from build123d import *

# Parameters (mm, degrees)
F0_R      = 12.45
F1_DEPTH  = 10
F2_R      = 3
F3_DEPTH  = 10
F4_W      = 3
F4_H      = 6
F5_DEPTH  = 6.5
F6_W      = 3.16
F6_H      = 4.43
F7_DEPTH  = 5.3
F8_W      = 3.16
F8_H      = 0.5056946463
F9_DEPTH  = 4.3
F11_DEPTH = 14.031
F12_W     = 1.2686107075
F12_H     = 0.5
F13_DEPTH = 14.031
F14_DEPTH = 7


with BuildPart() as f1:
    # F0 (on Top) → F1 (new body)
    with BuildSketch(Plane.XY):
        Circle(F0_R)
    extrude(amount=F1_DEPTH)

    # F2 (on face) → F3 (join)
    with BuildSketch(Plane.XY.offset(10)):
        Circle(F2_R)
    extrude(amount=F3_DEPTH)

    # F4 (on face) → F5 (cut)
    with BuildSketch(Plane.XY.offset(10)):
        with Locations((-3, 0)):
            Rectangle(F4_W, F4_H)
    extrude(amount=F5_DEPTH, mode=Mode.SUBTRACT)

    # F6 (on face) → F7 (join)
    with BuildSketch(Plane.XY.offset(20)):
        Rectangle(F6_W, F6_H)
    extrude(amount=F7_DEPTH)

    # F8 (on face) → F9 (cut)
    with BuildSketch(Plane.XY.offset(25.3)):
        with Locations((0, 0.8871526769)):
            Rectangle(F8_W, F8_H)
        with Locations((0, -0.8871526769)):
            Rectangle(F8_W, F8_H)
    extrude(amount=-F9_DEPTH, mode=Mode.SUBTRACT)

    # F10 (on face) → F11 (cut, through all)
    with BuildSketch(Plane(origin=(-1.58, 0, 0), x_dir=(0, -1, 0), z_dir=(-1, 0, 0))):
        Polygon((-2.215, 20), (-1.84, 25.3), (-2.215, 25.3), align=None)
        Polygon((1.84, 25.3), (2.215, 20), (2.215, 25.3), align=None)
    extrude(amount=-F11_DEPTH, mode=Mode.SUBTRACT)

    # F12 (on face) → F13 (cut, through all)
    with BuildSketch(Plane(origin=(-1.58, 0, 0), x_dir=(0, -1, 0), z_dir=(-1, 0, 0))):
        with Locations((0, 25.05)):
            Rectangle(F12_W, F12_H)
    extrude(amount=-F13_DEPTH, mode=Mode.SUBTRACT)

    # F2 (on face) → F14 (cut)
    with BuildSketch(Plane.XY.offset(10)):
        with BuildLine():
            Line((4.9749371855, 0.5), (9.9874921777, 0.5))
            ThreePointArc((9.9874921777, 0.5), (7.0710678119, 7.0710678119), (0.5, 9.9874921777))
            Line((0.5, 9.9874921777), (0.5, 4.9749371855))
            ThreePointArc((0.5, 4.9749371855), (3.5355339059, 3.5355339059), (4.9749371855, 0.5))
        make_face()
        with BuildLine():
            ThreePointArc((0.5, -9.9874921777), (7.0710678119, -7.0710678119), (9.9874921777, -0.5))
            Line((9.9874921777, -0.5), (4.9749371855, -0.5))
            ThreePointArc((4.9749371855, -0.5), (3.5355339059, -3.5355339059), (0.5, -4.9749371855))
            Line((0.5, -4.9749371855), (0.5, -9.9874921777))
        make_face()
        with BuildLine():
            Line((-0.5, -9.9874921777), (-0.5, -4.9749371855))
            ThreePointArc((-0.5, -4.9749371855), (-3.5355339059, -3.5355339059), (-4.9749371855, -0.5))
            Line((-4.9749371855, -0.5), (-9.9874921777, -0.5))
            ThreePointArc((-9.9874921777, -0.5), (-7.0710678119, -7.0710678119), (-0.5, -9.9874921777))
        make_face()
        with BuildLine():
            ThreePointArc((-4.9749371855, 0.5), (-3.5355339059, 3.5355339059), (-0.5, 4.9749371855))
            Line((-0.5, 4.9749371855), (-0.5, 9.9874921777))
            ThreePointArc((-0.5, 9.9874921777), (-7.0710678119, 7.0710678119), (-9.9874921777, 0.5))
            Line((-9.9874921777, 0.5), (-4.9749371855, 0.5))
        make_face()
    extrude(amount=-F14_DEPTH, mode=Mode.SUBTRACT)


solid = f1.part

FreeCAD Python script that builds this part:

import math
import FreeCAD as App
import Part
import Sketcher
from FreeCAD import Vector
Q = App.Units.Quantity

doc = App.newDocument("Part")
body = doc.addObject("PartDesign::Body", "Body")

sketch1 = body.newObject("Sketcher::SketchObject", "Sketch")
sketch1.AttachmentSupport = (doc.getObject("XY_Plane"), [""])
sketch1.MapMode = "FlatFace"
sketch1.addGeometry(Part.Circle(Vector(0, 0, 0), Vector(0, 0, 1), 12), False)
sketch1.addConstraint(Sketcher.Constraint("Coincident", 0, 3, -1, 1))
sketch1.addConstraint(Sketcher.Constraint("Diameter", 0, Q("24.9 mm")))
pad1 = body.newObject("PartDesign::Pad", "Pad")
pad1.Profile = sketch1
pad1.Length = 10

sketch2 = body.newObject("Sketcher::SketchObject", "Sketch001")
sketch2.AttachmentSupport = (doc.getObject("XY_Plane"), [""])
sketch2.MapMode = "FlatFace"
sketch2.AttachmentOffset = App.Placement(Vector(0, 0, 10), App.Rotation())
sketch2.addGeometry(Part.Circle(Vector(0, 0, 0), Vector(0, 0, 1), 3), False)
sketch2.addConstraint(Sketcher.Constraint("Coincident", 0, 3, -1, 1))
sketch2.addConstraint(Sketcher.Constraint("Diameter", 0, Q("6 mm")))
pad2 = body.newObject("PartDesign::Pad", "Pad001")
pad2.Profile = sketch2
pad2.Length = 10

sketch3 = body.newObject("Sketcher::SketchObject", "Sketch002")
sketch3.AttachmentSupport = (doc.getObject("XY_Plane"), [""])
sketch3.MapMode = "FlatFace"
sketch3.AttachmentOffset = App.Placement(Vector(0, 0, 10), App.Rotation())
sketch3.addGeometry(Part.LineSegment(Vector(-4.5, 3, 0), Vector(-4.5, -3, 0)), False)
sketch3.addGeometry(Part.LineSegment(Vector(-4.5, -3, 0), Vector(-1.5, -3, 0)), False)
sketch3.addGeometry(Part.LineSegment(Vector(-1.5, -3, 0), Vector(-1.5, 3, 0)), False)
sketch3.addGeometry(Part.LineSegment(Vector(-1.5, 3, 0), Vector(-4.5, 3, 0)), False)
sketch3.addConstraint(Sketcher.Constraint("Coincident", 0, 2, 1, 1))
sketch3.addConstraint(Sketcher.Constraint("Coincident", 1, 2, 2, 1))
sketch3.addConstraint(Sketcher.Constraint("Coincident", 2, 2, 3, 1))
sketch3.addConstraint(Sketcher.Constraint("Coincident", 3, 2, 0, 1))
sketch3.addConstraint(Sketcher.Constraint("Vertical", 0))
sketch3.addConstraint(Sketcher.Constraint("Horizontal", 1))
sketch3.addConstraint(Sketcher.Constraint("Vertical", 2))
sketch3.addConstraint(Sketcher.Constraint("Horizontal", 3))
sketch3.addConstraint(Sketcher.Constraint("DistanceX", 1, 1, 1, 2, Q("3 mm")))
sketch3.addConstraint(Sketcher.Constraint("DistanceY", 0, 2, 0, 1, Q("6 mm")))
sketch3.addConstraint(Sketcher.Constraint("DistanceY", 0, 2, -1, 1, Q("3 mm")))
sketch3.addConstraint(Sketcher.Constraint("DistanceX", 0, 2, -1, 1, Q("4.5 mm")))
pocket1 = body.newObject("PartDesign::Pocket", "Pocket")
pocket1.Profile = sketch3
pocket1.Length = 6.5
pocket1.Reversed = True

sketch4 = body.newObject("Sketcher::SketchObject", "Sketch003")
sketch4.AttachmentSupport = (doc.getObject("XY_Plane"), [""])
sketch4.MapMode = "FlatFace"
sketch4.AttachmentOffset = App.Placement(Vector(0, 0, 20), App.Rotation())
sketch4.addGeometry(Part.LineSegment(Vector(-1.6, 2.2, 0), Vector(-1.6, -2.2, 0)), False)
sketch4.addGeometry(Part.LineSegment(Vector(-1.6, -2.2, 0), Vector(1.6, -2.2, 0)), False)
sketch4.addGeometry(Part.LineSegment(Vector(1.6, -2.2, 0), Vector(1.6, 2.2, 0)), False)
sketch4.addGeometry(Part.LineSegment(Vector(1.6, 2.2, 0), Vector(-1.6, 2.2, 0)), False)
sketch4.addConstraint(Sketcher.Constraint("Coincident", 0, 2, 1, 1))
sketch4.addConstraint(Sketcher.Constraint("Coincident", 1, 2, 2, 1))
sketch4.addConstraint(Sketcher.Constraint("Coincident", 2, 2, 3, 1))
sketch4.addConstraint(Sketcher.Constraint("Coincident", 3, 2, 0, 1))
sketch4.addConstraint(Sketcher.Constraint("Vertical", 0))
sketch4.addConstraint(Sketcher.Constraint("Horizontal", 1))
sketch4.addConstraint(Sketcher.Constraint("Vertical", 2))
sketch4.addConstraint(Sketcher.Constraint("Horizontal", 3))
sketch4.addConstraint(Sketcher.Constraint("Symmetric", 0, 2, 2, 2, -1, 1))
sketch4.addConstraint(Sketcher.Constraint("DistanceX", 1, 1, 1, 2, Q("3.16 mm")))
sketch4.addConstraint(Sketcher.Constraint("DistanceY", 0, 2, 0, 1, Q("4.43 mm")))
pad3 = body.newObject("PartDesign::Pad", "Pad002")
pad3.Profile = sketch4
pad3.Length = 5.3

sketch5 = body.newObject("Sketcher::SketchObject", "Sketch004")
sketch5.AttachmentSupport = (doc.getObject("XY_Plane"), [""])
sketch5.MapMode = "FlatFace"
sketch5.AttachmentOffset = App.Placement(Vector(0, 0, 25.3), App.Rotation())
sketch5.addGeometry(Part.LineSegment(Vector(-1.6, 1.1, 0), Vector(-1.6, 0.6, 0)), False)
sketch5.addGeometry(Part.LineSegment(Vector(-1.6, 0.6, 0), Vector(1.6, 0.6, 0)), False)
sketch5.addGeometry(Part.LineSegment(Vector(1.6, 0.6, 0), Vector(1.6, 1.1, 0)), False)
sketch5.addGeometry(Part.LineSegment(Vector(1.6, 1.1, 0), Vector(-1.6, 1.1, 0)), False)
sketch5.addGeometry(Part.LineSegment(Vector(-1.6, -0.6, 0), Vector(-1.6, -1.1, 0)), False)
sketch5.addGeometry(Part.LineSegment(Vector(-1.6, -1.1, 0), Vector(1.6, -1.1, 0)), False)
sketch5.addGeometry(Part.LineSegment(Vector(1.6, -1.1, 0), Vector(1.6, -0.6, 0)), False)
sketch5.addGeometry(Part.LineSegment(Vector(1.6, -0.6, 0), Vector(-1.6, -0.6, 0)), False)
sketch5.addConstraint(Sketcher.Constraint("Coincident", 0, 2, 1, 1))
sketch5.addConstraint(Sketcher.Constraint("Coincident", 1, 2, 2, 1))
sketch5.addConstraint(Sketcher.Constraint("Coincident", 2, 2, 3, 1))
sketch5.addConstraint(Sketcher.Constraint("Coincident", 3, 2, 0, 1))
sketch5.addConstraint(Sketcher.Constraint("Coincident", 4, 2, 5, 1))
sketch5.addConstraint(Sketcher.Constraint("Coincident", 5, 2, 6, 1))
sketch5.addConstraint(Sketcher.Constraint("Coincident", 6, 2, 7, 1))
sketch5.addConstraint(Sketcher.Constraint("Coincident", 7, 2, 4, 1))
sketch5.addConstraint(Sketcher.Constraint("Vertical", 0))
sketch5.addConstraint(Sketcher.Constraint("Horizontal", 1))
sketch5.addConstraint(Sketcher.Constraint("Vertical", 2))
sketch5.addConstraint(Sketcher.Constraint("Horizontal", 3))
sketch5.addConstraint(Sketcher.Constraint("Vertical", 4))
sketch5.addConstraint(Sketcher.Constraint("Horizontal", 5))
sketch5.addConstraint(Sketcher.Constraint("Vertical", 6))
sketch5.addConstraint(Sketcher.Constraint("Horizontal", 7))
sketch5.addConstraint(Sketcher.Constraint("Symmetric", 2, 2, 4, 2, -1, 1))
sketch5.addConstraint(Sketcher.Constraint("Symmetric", 0, 2, 6, 2, -1, 1))
sketch5.addConstraint(Sketcher.Constraint("Vertical", 3, 2, 4, 2))
sketch5.addConstraint(Sketcher.Constraint("DistanceX", 1, 1, 1, 2, Q("3.16 mm")))
sketch5.addConstraint(Sketcher.Constraint("DistanceY", -1, 1, 2, 2, Q("1.14 mm")))
sketch5.addConstraint(Sketcher.Constraint("DistanceY", 0, 2, 0, 1, Q("0.505695 mm")))
pocket2 = body.newObject("PartDesign::Pocket", "Pocket001")
pocket2.Profile = sketch5
pocket2.Length = 4.3

sketch6 = body.newObject("Sketcher::SketchObject", "Sketch005")
sketch6.AttachmentSupport = (doc.getObject("YZ_Plane"), [""])
sketch6.MapMode = "FlatFace"
sketch6.AttachmentOffset = App.Placement(Vector(0, 0, -1.58), App.Rotation())
sketch6.addGeometry(Part.LineSegment(Vector(2.21, 20, 0), Vector(1.84, 25.3, 0)), False)
sketch6.addGeometry(Part.LineSegment(Vector(1.84, 25.3, 0), Vector(2.21, 25.3, 0)), False)
sketch6.addGeometry(Part.LineSegment(Vector(2.21, 25.3, 0), Vector(2.21, 20, 0)), False)
sketch6.addGeometry(Part.LineSegment(Vector(-1.84, 25.3, 0), Vector(-2.21, 20, 0)), False)
sketch6.addGeometry(Part.LineSegment(Vector(-2.21, 20, 0), Vector(-2.21, 25.3, 0)), False)
sketch6.addGeometry(Part.LineSegment(Vector(-2.21, 25.3, 0), Vector(-1.84, 25.3, 0)), False)
sketch6.addConstraint(Sketcher.Constraint("Coincident", 0, 2, 1, 1))
sketch6.addConstraint(Sketcher.Constraint("Coincident", 1, 2, 2, 1))
sketch6.addConstraint(Sketcher.Constraint("Coincident", 2, 2, 0, 1))
sketch6.addConstraint(Sketcher.Constraint("Coincident", 3, 2, 4, 1))
sketch6.addConstraint(Sketcher.Constraint("Coincident", 4, 2, 5, 1))
sketch6.addConstraint(Sketcher.Constraint("Coincident", 5, 2, 3, 1))
sketch6.addConstraint(Sketcher.Constraint("Horizontal", 1))
sketch6.addConstraint(Sketcher.Constraint("Vertical", 2))
sketch6.addConstraint(Sketcher.Constraint("Vertical", 4))
sketch6.addConstraint(Sketcher.Constraint("Horizontal", 5))
sketch6.addConstraint(Sketcher.Constraint("Symmetric", 2, 2, 3, 2, -2))
sketch6.addConstraint(Sketcher.Constraint("Symmetric", 0, 2, 5, 2, -2))
sketch6.addConstraint(Sketcher.Constraint("DistanceY", 2, 2, 2, 1, Q("5.3 mm")))
sketch6.addConstraint(Sketcher.Constraint("DistanceY", -1, 1, 2, 2, Q("20 mm")))
sketch6.addConstraint(Sketcher.Constraint("DistanceX", 1, 1, 1, 2, Q("0.375 mm")))
sketch6.addConstraint(Sketcher.Constraint("DistanceX", -1, 1, 0, 2, Q("1.84 mm")))
pocket3 = body.newObject("PartDesign::Pocket", "Pocket002")
pocket3.Profile = sketch6
pocket3.Type = "ThroughAll"
pocket3.Reversed = True

sketch7 = body.newObject("Sketcher::SketchObject", "Sketch006")
sketch7.AttachmentSupport = (doc.getObject("YZ_Plane"), [""])
sketch7.MapMode = "FlatFace"
sketch7.AttachmentOffset = App.Placement(Vector(0, 0, -1.58), App.Rotation())
sketch7.addGeometry(Part.LineSegment(Vector(0.6, 25.3, 0), Vector(0.6, 24.8, 0)), False)
sketch7.addGeometry(Part.LineSegment(Vector(0.6, 24.8, 0), Vector(-0.6, 24.8, 0)), False)
sketch7.addGeometry(Part.LineSegment(Vector(-0.6, 24.8, 0), Vector(-0.6, 25.3, 0)), False)
sketch7.addGeometry(Part.LineSegment(Vector(-0.6, 25.3, 0), Vector(0.6, 25.3, 0)), False)
sketch7.addConstraint(Sketcher.Constraint("Coincident", 0, 2, 1, 1))
sketch7.addConstraint(Sketcher.Constraint("Coincident", 1, 2, 2, 1))
sketch7.addConstraint(Sketcher.Constraint("Coincident", 2, 2, 3, 1))
sketch7.addConstraint(Sketcher.Constraint("Coincident", 3, 2, 0, 1))
sketch7.addConstraint(Sketcher.Constraint("Vertical", 0))
sketch7.addConstraint(Sketcher.Constraint("Horizontal", 1))
sketch7.addConstraint(Sketcher.Constraint("Vertical", 2))
sketch7.addConstraint(Sketcher.Constraint("Horizontal", 3))
sketch7.addConstraint(Sketcher.Constraint("DistanceY", 0, 2, 0, 1, Q("0.5 mm")))
sketch7.addConstraint(Sketcher.Constraint("DistanceY", -1, 1, 0, 2, Q("24.8 mm")))
sketch7.addConstraint(Sketcher.Constraint("DistanceX", 1, 2, 1, 1, Q("1.268611 mm")))
sketch7.addConstraint(Sketcher.Constraint("DistanceX", -1, 1, 0, 2, Q("0.634305 mm")))
pocket4 = body.newObject("PartDesign::Pocket", "Pocket003")
pocket4.Profile = sketch7
pocket4.Type = "ThroughAll"
pocket4.Reversed = True

sketch8 = body.newObject("Sketcher::SketchObject", "Sketch007")
sketch8.AttachmentSupport = (doc.getObject("XY_Plane"), [""])
sketch8.MapMode = "FlatFace"
sketch8.AttachmentOffset = App.Placement(Vector(0, 0, 10), App.Rotation())
sketch8.addGeometry(Part.LineSegment(Vector(5, 0, 0), Vector(10, 0, 0)), False)
sketch8.addGeometry(Part.ArcOfCircle(Part.Circle(Vector(0, 0, 0), Vector(0, 0, 1), 10), math.radians(3), math.radians(87)), False)
sketch8.addGeometry(Part.LineSegment(Vector(0, 10, 0), Vector(0, 5, 0)), False)
sketch8.addGeometry(Part.ArcOfCircle(Part.Circle(Vector(0, 0, 0), Vector(0, 0, 1), 5), math.radians(6), math.radians(84)), False)
sketch8.addGeometry(Part.ArcOfCircle(Part.Circle(Vector(0, 0, 0), Vector(0, 0, 1), 10), math.radians(-87), math.radians(-3)), False)
sketch8.addGeometry(Part.LineSegment(Vector(10, 0, 0), Vector(5, 0, 0)), False)
sketch8.addGeometry(Part.ArcOfCircle(Part.Circle(Vector(0, 0, 0), Vector(0, 0, 1), 5), math.radians(-84), math.radians(-6)), False)
sketch8.addGeometry(Part.LineSegment(Vector(0, -5, 0), Vector(0, -10, 0)), False)
sketch8.addGeometry(Part.LineSegment(Vector(0, -10, 0), Vector(0, -5, 0)), False)
sketch8.addGeometry(Part.ArcOfCircle(Part.Circle(Vector(0, 0, 0), Vector(0, 0, 1), 5), math.radians(-174), math.radians(-96)), False)
sketch8.addGeometry(Part.LineSegment(Vector(-5, 0, 0), Vector(-10, 0, 0)), False)
sketch8.addGeometry(Part.ArcOfCircle(Part.Circle(Vector(0, 0, 0), Vector(0, 0, 1), 10), math.radians(-177), math.radians(-93)), False)
sketch8.addGeometry(Part.ArcOfCircle(Part.Circle(Vector(0, 0, 0), Vector(0, 0, 1), 5), math.radians(96), math.radians(174)), False)
sketch8.addGeometry(Part.LineSegment(Vector(0, 5, 0), Vector(0, 10, 0)), False)
sketch8.addGeometry(Part.ArcOfCircle(Part.Circle(Vector(0, 0, 0), Vector(0, 0, 1), 10), math.radians(93), math.radians(177)), False)
sketch8.addGeometry(Part.LineSegment(Vector(-10, 0, 0), Vector(-5, 0, 0)), False)
sketch8.addConstraint(Sketcher.Constraint("Coincident", 0, 2, 1, 1))
sketch8.addConstraint(Sketcher.Constraint("Coincident", 1, 2, 2, 1))
sketch8.addConstraint(Sketcher.Constraint("Coincident", 2, 2, 3, 2))
sketch8.addConstraint(Sketcher.Constraint("Coincident", 3, 1, 0, 1))
sketch8.addConstraint(Sketcher.Constraint("Coincident", 4, 2, 5, 1))
sketch8.addConstraint(Sketcher.Constraint("Coincident", 5, 2, 6, 2))
sketch8.addConstraint(Sketcher.Constraint("Coincident", 6, 1, 7, 1))
sketch8.addConstraint(Sketcher.Constraint("Coincident", 7, 2, 4, 1))
sketch8.addConstraint(Sketcher.Constraint("Coincident", 8, 2, 9, 2))
sketch8.addConstraint(Sketcher.Constraint("Coincident", 9, 1, 10, 1))
sketch8.addConstraint(Sketcher.Constraint("Coincident", 10, 2, 11, 1))
sketch8.addConstraint(Sketcher.Constraint("Coincident", 11, 2, 8, 1))
sketch8.addConstraint(Sketcher.Constraint("Coincident", 12, 1, 13, 1))
sketch8.addConstraint(Sketcher.Constraint("Coincident", 13, 2, 14, 1))
sketch8.addConstraint(Sketcher.Constraint("Coincident", 14, 2, 15, 1))
sketch8.addConstraint(Sketcher.Constraint("Coincident", 15, 2, 12, 2))
sketch8.addConstraint(Sketcher.Constraint("Horizontal", 0))
sketch8.addConstraint(Sketcher.Constraint("Vertical", 2))
sketch8.addConstraint(Sketcher.Constraint("Horizontal", 5))
sketch8.addConstraint(Sketcher.Constraint("Vertical", 7))
sketch8.addConstraint(Sketcher.Constraint("Vertical", 8))
sketch8.addConstraint(Sketcher.Constraint("Horizontal", 10))
sketch8.addConstraint(Sketcher.Constraint("Vertical", 13))
sketch8.addConstraint(Sketcher.Constraint("Horizontal", 15))
sketch8.addConstraint(Sketcher.Constraint("Coincident", 1, 3, -1, 1))
sketch8.addConstraint(Sketcher.Constraint("Coincident", 3, 3, -1, 1))
sketch8.addConstraint(Sketcher.Constraint("Coincident", 4, 3, -1, 1))
sketch8.addConstraint(Sketcher.Constraint("Coincident", 6, 3, -1, 1))
sketch8.addConstraint(Sketcher.Constraint("Coincident", 9, 3, -1, 1))
sketch8.addConstraint(Sketcher.Constraint("Coincident", 11, 3, -1, 1))
sketch8.addConstraint(Sketcher.Constraint("Coincident", 12, 3, -1, 1))
sketch8.addConstraint(Sketcher.Constraint("Coincident", 14, 3, -1, 1))
sketch8.addConstraint(Sketcher.Constraint("Equal", 1, 4))
sketch8.addConstraint(Sketcher.Constraint("Equal", 3, 6))
sketch8.addConstraint(Sketcher.Constraint("Equal", 6, 9))
sketch8.addConstraint(Sketcher.Constraint("Equal", 4, 11))
sketch8.addConstraint(Sketcher.Constraint("Equal", 9, 12))
sketch8.addConstraint(Sketcher.Constraint("Equal", 11, 14))
sketch8.addConstraint(Sketcher.Constraint("Horizontal", 6, 1, 8, 2))
sketch8.addConstraint(Sketcher.Constraint("Horizontal", 5, 2, 9, 1))
sketch8.addConstraint(Sketcher.Constraint("Horizontal", 2, 2, 12, 1))
sketch8.addConstraint(Sketcher.Constraint("Horizontal", 3, 1, 14, 2))
sketch8.addConstraint(Sketcher.Constraint("Vertical", 0, 2, 4, 2))
sketch8.addConstraint(Sketcher.Constraint("Vertical", 2, 2, 6, 1))
sketch8.addConstraint(Sketcher.Constraint("Equal", 15, 2))
sketch8.addConstraint(Sketcher.Constraint("Radius", 1, Q("10 mm")))
sketch8.addConstraint(Sketcher.Constraint("Radius", 3, Q("5 mm")))
sketch8.addConstraint(Sketcher.Constraint("DistanceY", 4, 2, 0, 2, Q("1 mm")))
pocket5 = body.newObject("PartDesign::Pocket", "Pocket004")
pocket5.Profile = sketch8
pocket5.Length = 7

doc.recompute()
